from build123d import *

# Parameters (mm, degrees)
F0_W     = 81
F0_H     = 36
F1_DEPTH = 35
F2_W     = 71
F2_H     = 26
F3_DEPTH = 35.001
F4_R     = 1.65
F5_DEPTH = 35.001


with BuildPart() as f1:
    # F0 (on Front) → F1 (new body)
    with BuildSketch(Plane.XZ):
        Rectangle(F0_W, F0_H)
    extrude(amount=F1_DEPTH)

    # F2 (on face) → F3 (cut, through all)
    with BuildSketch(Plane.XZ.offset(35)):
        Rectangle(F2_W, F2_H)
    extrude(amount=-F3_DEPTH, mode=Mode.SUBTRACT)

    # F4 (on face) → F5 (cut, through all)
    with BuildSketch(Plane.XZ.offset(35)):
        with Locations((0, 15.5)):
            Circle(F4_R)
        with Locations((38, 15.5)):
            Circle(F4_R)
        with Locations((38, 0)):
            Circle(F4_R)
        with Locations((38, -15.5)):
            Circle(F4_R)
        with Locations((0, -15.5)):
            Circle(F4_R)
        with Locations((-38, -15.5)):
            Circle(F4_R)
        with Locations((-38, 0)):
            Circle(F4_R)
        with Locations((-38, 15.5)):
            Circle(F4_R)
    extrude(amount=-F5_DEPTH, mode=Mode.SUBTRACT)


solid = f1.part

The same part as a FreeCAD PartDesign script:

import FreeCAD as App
import Part
import Sketcher

V = App.Vector

doc = App.newDocument("Part")
body = doc.addObject("PartDesign::Body", "Body")

sketch1 = body.newObject("Sketcher::SketchObject", "Sketch")
sketch1.AttachmentSupport = (doc.getObject("XZ_Plane"), [""])
sketch1.MapMode = "FlatFace"
sketch1.addGeometry([
    Part.LineSegment(V(-40.5, 18, 0), V(-40.5, -18, 0)),
    Part.LineSegment(V(-40.5, -18, 0), V(40.5, -18, 0)),
    Part.LineSegment(V(40.5, -18, 0), V(40.5, 18, 0)),
    Part.LineSegment(V(40.5, 18, 0), V(-40.5, 18, 0)),
], False)
sketch1.addConstraint([
    Sketcher.Constraint("Coincident", 0, 2, 1, 1),
    Sketcher.Constraint("Coincident", 1, 2, 2, 1),
    Sketcher.Constraint("Coincident", 2, 2, 3, 1),
    Sketcher.Constraint("Coincident", 3, 2, 0, 1),
    Sketcher.Constraint("Vertical", 0),
    Sketcher.Constraint("Horizontal", 1),
    Sketcher.Constraint("Vertical", 2),
    Sketcher.Constraint("Horizontal", 3),
    Sketcher.Constraint("Symmetric", 0, 2, 2, 2, -1, 1),
    Sketcher.Constraint("DistanceX", 1, 1, 1, 2, 81.0),
    Sketcher.Constraint("DistanceY", 0, 2, 0, 1, 36.0),
])
pad1 = body.newObject("PartDesign::Pad", "Pad")
pad1.Profile = sketch1
pad1.Length = 35

sketch2 = body.newObject("Sketcher::SketchObject", "Sketch001")
sketch2.AttachmentSupport = (doc.getObject("XZ_Plane"), [""])
sketch2.MapMode = "FlatFace"
sketch2.AttachmentOffset = App.Placement(V(0, 0, 35), App.Rotation())
sketch2.addGeometry([
    Part.LineSegment(V(-35.5, 13, 0), V(-35.5, -13, 0)),
    Part.LineSegment(V(-35.5, -13, 0), V(35.5, -13, 0)),
    Part.LineSegment(V(35.5, -13, 0), V(35.5, 13, 0)),
    Part.LineSegment(V(35.5, 13, 0), V(-35.5, 13, 0)),
], False)
sketch2.addConstraint([
    Sketcher.Constraint("Coincident", 0, 2, 1, 1),
    Sketcher.Constraint("Coincident", 1, 2, 2, 1),
    Sketcher.Constraint("Coincident", 2, 2, 3, 1),
    Sketcher.Constraint("Coincident", 3, 2, 0, 1),
    Sketcher.Constraint("Vertical", 0),
    Sketcher.Constraint("Horizontal", 1),
    Sketcher.Constraint("Vertical", 2),
    Sketcher.Constraint("Horizontal", 3),
    Sketcher.Constraint("Symmetric", 0, 2, 2, 2, -1, 1),
    Sketcher.Constraint("DistanceX", 1, 1, 1, 2, 71.0),
    Sketcher.Constraint("DistanceY", 0, 2, 0, 1, 26.0),
])
pocket1 = body.newObject("PartDesign::Pocket", "Pocket")
pocket1.Profile = sketch2
pocket1.Type = "ThroughAll"

sketch3 = body.newObject("Sketcher::SketchObject", "Sketch002")
sketch3.AttachmentSupport = (doc.getObject("XZ_Plane"), [""])
sketch3.MapMode = "FlatFace"
sketch3.AttachmentOffset = App.Placement(V(0, 0, 35), App.Rotation())
sketch3.addGeometry([
    Part.Circle(V(0, 15.5, 0), V(0, 0, 1), 1.65),
    Part.Circle(V(38, 15.5, 0), V(0, 0, 1), 1.65),
    Part.Circle(V(38, 0, 0), V(0, 0, 1), 1.65),
    Part.Circle(V(38, -15.5, 0), V(0, 0, 1), 1.65),
    Part.Circle(V(0, -15.5, 0), V(0, 0, 1), 1.65),
    Part.Circle(V(-38, -15.5, 0), V(0, 0, 1), 1.65),
    Part.Circle(V(-38, 0, 0), V(0, 0, 1), 1.65),
    Part.Circle(V(-38, 15.5, 0), V(0, 0, 1), 1.65),
], False)
sketch3.addConstraint([
    Sketcher.Constraint("Equal", 0, 1),
    Sketcher.Constraint("Equal", 1, 2),
    Sketcher.Constraint("Equal", 2, 3),
    Sketcher.Constraint("Equal", 3, 4),
    Sketcher.Constraint("Equal", 4, 5),
    Sketcher.Constraint("Equal", 5, 6),
    Sketcher.Constraint("Equal", 6, 7),
    Sketcher.Constraint("Symmetric", 0, 3, 4, 3, -1, 1),
    Sketcher.Constraint("Symmetric", 1, 3, 5, 3, -1, 1),
    Sketcher.Constraint("Symmetric", 2, 3, 6, 3, -1, 1),
    Sketcher.Constraint("Symmetric", 3, 3, 7, 3, -1, 1),
    Sketcher.Constraint("Symmetric", 3, 3, 5, 3, -2),
    Sketcher.Constraint("PointOnObject", 0, 3, -2),
    Sketcher.Constraint("PointOnObject", 2, 3, -1),
    Sketcher.Constraint("Horizontal", 0, 3, 1, 3),
    Sketcher.Constraint("Vertical", 1, 3, 2, 3),
    Sketcher.Constraint("Diameter", 0, 3.3),
    Sketcher.Constraint("DistanceX", -1, 1, 1, 3, 38.0),
    Sketcher.Constraint("DistanceY", 3, 3, 1, 3, 31.0),
])
pocket2 = body.newObject("PartDesign::Pocket", "Pocket001")
pocket2.Profile = sketch3
pocket2.Type = "ThroughAll"

doc.recompute()
